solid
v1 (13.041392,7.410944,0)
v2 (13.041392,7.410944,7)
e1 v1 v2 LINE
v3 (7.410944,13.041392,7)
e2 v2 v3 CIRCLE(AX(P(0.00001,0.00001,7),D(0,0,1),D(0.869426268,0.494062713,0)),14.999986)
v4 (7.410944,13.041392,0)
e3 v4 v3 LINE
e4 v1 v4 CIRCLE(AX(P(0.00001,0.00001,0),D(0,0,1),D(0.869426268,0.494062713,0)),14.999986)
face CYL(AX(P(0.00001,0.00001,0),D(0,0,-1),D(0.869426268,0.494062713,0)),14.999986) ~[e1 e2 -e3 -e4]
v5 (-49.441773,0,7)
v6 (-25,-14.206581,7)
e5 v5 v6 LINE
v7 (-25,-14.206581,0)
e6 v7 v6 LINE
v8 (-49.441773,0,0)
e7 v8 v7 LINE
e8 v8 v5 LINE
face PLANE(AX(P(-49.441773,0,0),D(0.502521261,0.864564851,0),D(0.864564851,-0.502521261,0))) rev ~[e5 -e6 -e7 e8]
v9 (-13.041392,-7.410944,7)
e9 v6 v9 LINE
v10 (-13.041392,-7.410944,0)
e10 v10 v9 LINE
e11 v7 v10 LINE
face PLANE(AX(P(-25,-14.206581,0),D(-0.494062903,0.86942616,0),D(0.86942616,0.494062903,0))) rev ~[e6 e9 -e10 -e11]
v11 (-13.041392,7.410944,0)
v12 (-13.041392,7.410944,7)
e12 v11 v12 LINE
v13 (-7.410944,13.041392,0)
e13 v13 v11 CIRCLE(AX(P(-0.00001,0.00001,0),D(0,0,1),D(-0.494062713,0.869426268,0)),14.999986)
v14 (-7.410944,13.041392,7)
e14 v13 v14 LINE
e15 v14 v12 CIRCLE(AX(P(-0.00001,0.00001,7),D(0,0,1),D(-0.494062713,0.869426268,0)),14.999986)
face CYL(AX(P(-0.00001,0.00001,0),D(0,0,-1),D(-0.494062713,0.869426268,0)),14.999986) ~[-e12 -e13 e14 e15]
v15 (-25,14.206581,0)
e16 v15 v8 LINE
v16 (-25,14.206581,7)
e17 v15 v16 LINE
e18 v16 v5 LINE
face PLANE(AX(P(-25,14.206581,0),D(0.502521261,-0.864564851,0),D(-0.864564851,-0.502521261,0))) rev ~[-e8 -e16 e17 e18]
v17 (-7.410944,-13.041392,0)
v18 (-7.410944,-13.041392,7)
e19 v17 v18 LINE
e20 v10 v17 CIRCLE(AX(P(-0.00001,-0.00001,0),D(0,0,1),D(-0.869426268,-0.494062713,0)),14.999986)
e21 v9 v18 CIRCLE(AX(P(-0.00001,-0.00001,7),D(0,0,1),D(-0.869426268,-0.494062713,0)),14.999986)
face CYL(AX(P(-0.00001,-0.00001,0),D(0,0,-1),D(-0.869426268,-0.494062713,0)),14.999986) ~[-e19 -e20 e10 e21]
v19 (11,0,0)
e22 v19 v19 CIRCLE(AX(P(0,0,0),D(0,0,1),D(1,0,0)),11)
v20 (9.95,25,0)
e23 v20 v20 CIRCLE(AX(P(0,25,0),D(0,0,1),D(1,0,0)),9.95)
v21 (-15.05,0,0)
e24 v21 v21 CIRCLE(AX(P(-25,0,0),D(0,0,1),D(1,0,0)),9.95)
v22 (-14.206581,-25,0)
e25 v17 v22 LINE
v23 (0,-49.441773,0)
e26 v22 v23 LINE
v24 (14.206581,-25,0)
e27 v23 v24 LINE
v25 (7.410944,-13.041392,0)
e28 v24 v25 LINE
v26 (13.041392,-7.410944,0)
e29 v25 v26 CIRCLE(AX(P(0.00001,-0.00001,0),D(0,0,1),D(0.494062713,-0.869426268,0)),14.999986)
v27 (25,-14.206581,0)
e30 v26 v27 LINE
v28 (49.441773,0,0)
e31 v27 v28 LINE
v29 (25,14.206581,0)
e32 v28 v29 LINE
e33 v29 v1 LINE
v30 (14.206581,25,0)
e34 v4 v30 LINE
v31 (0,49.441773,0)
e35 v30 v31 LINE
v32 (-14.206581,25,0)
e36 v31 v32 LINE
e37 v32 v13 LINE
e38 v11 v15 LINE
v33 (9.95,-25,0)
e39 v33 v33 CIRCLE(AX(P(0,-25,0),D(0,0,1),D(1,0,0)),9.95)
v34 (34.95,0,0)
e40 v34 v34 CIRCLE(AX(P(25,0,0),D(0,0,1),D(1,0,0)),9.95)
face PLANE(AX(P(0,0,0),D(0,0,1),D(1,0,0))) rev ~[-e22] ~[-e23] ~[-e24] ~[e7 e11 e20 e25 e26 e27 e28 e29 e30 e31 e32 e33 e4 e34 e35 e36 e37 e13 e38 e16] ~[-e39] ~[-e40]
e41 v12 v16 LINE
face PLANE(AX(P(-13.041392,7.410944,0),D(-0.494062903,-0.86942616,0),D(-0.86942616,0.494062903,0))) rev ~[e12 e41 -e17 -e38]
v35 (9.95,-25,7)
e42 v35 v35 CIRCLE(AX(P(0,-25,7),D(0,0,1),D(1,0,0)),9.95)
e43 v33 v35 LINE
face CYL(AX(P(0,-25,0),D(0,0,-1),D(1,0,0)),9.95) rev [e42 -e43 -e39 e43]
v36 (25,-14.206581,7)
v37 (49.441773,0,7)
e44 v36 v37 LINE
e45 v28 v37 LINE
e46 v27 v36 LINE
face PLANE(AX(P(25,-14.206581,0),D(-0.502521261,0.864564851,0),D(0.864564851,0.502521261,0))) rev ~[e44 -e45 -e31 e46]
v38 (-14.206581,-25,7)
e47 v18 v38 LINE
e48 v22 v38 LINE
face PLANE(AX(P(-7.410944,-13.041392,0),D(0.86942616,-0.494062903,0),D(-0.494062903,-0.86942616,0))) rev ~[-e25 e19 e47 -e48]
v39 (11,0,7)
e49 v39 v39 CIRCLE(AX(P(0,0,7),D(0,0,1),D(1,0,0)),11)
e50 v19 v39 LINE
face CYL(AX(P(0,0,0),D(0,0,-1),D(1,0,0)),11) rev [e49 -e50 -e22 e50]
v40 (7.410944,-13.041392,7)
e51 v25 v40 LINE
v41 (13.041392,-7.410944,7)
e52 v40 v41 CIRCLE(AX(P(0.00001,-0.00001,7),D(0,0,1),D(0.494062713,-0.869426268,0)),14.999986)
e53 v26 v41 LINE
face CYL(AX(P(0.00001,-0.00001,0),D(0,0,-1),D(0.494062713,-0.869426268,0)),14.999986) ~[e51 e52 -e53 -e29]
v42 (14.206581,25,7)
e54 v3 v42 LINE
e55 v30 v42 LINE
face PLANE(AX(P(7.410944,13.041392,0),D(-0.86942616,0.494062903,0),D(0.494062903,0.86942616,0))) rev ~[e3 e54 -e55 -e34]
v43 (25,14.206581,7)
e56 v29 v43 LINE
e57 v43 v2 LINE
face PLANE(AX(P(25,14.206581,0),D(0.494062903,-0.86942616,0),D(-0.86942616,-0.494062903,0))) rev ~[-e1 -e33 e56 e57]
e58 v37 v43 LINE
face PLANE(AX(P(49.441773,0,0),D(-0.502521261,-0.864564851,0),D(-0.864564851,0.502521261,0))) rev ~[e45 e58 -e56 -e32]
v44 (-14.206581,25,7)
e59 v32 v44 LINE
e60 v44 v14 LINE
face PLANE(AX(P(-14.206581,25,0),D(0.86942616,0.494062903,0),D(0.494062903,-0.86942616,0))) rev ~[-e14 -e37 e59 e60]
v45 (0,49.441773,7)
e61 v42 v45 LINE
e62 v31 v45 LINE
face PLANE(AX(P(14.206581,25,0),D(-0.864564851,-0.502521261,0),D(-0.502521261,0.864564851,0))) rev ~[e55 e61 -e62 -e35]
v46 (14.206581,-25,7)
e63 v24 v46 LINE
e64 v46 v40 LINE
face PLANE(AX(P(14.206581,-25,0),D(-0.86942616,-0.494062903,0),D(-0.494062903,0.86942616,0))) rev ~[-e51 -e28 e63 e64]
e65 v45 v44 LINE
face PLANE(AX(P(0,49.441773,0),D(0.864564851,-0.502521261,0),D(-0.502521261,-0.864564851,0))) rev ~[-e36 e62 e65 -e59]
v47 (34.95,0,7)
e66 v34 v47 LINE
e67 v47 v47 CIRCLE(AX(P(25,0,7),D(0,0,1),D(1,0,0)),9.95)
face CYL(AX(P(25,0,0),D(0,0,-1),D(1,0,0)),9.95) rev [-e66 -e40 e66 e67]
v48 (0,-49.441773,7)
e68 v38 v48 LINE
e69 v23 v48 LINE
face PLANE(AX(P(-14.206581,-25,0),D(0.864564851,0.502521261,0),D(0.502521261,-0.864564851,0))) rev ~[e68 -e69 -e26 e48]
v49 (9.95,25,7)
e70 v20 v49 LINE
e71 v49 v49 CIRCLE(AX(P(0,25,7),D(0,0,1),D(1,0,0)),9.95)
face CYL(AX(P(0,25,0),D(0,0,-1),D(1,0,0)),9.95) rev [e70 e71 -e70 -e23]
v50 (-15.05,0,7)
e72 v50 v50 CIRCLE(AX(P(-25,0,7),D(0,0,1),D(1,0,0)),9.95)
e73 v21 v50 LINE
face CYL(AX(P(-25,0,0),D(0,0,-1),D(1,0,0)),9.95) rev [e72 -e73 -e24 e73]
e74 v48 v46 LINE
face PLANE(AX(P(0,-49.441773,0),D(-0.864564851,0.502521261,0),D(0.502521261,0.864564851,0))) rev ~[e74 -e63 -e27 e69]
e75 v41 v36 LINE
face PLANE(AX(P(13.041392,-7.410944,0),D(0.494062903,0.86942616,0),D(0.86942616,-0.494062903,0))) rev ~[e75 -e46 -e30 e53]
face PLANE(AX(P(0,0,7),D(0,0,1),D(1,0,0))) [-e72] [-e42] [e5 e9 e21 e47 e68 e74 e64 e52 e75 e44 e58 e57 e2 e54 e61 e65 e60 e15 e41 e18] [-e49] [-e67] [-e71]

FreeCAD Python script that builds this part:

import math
import FreeCAD as App
import Part
import Sketcher

V = App.Vector

doc = App.newDocument("Part")
params = doc.addObject("Spreadsheet::Sheet", "Params")
for row, (alias, value) in enumerate([
    ("sketch1_diameter", "22 mm"),
    ("sketch1_diameter2", "19.9 mm"),
    ("pad1_length", "7 mm"),
], start=1):
    params.set(f"A{row}", alias)
    params.set(f"B{row}", "=" + value)
    params.setAlias(f"B{row}", alias)

body = doc.addObject("PartDesign::Body", "Body")

sketch1 = body.newObject("Sketcher::SketchObject", "Sketch")
sketch1.AttachmentSupport = (doc.getObject("XY_Plane"), [""])
sketch1.MapMode = "FlatFace"
sketch1.addGeometry([
    Part.LineSegment(V(-14.206581, 25, 0), V(-7.410944, 13.041392, 0)),
    Part.ArcOfCircle(Part.Circle(V(-0.00001, 0.00001, 0), V(0, 0, 1), 14.999986), math.radians(119.607964), math.radians(150.392036)),
    Part.LineSegment(V(-13.041392, 7.410944, 0), V(-25, 14.206581, 0)),
    Part.LineSegment(V(-25, 14.206581, 0), V(-49.441773, 0, 0)),
    Part.LineSegment(V(-49.441773, 0, 0), V(-25, -14.206581, 0)),
    Part.LineSegment(V(-25, -14.206581, 0), V(-13.041392, -7.410944, 0)),
    Part.ArcOfCircle(Part.Circle(V(-0.00001, -0.00001, 0), V(0, 0, 1), 14.999986), math.radians(-150.392036), math.radians(-119.607964)),
    Part.LineSegment(V(-7.410944, -13.041392, 0), V(-14.206581, -25, 0)),
    Part.LineSegment(V(-14.206581, -25, 0), V(0, -49.441773, 0)),
    Part.LineSegment(V(0, -49.441773, 0), V(14.206581, -25, 0)),
    Part.LineSegment(V(14.206581, -25, 0), V(7.410944, -13.041392, 0)),
    Part.ArcOfCircle(Part.Circle(V(0.00001, -0.00001, 0), V(0, 0, 1), 14.999986), math.radians(-60.392036), math.radians(-29.607964)),
    Part.LineSegment(V(13.041392, -7.410944, 0), V(25, -14.206581, 0)),
    Part.LineSegment(V(25, -14.206581, 0), V(49.441773, 0, 0)),
    Part.LineSegment(V(49.441773, 0, 0), V(25, 14.206581, 0)),
    Part.LineSegment(V(25, 14.206581, 0), V(13.041392, 7.410944, 0)),
    Part.ArcOfCircle(Part.Circle(V(0.00001, 0.00001, 0), V(0, 0, 1), 14.999986), math.radians(29.607964), math.radians(60.392036)),
    Part.LineSegment(V(7.410944, 13.041392, 0), V(14.206581, 25, 0)),
    Part.LineSegment(V(14.206581, 25, 0), V(0, 49.441773, 0)),
    Part.LineSegment(V(0, 49.441773, 0), V(-14.206581, 25, 0)),
    Part.Circle(V(0, -25, 0), V(0, 0, 1), 9.95),
    Part.Circle(V(-25, 0, 0), V(0, 0, 1), 9.95),
    Part.Circle(V(0, 0, 0), V(0, 0, 1), 11),
    Part.Circle(V(25, 0, 0), V(0, 0, 1), 9.95),
    Part.Circle(V(0, 25, 0), V(0, 0, 1), 9.95),
], False)
sketch1.addConstraint([
    Sketcher.Constraint("Coincident", 0, 2, 1, 1),
    Sketcher.Constraint("Coincident", 1, 2, 2, 1),
    Sketcher.Constraint("Coincident", 2, 2, 3, 1),
    Sketcher.Constraint("Coincident", 3, 2, 4, 1),
    Sketcher.Constraint("Coincident", 4, 2, 5, 1),
    Sketcher.Constraint("Coincident", 5, 2, 6, 1),
    Sketcher.Constraint("Coincident", 6, 2, 7, 1),
    Sketcher.Constraint("Coincident", 7, 2, 8, 1),
    Sketcher.Constraint("Coincident", 8, 2, 9, 1),
    Sketcher.Constraint("Coincident", 9, 2, 10, 1),
    Sketcher.Constraint("Coincident", 10, 2, 11, 1),
    Sketcher.Constraint("Coincident", 11, 2, 12, 1),
    Sketcher.Constraint("Coincident", 12, 2, 13, 1),
    Sketcher.Constraint("Coincident", 13, 2, 14, 1),
    Sketcher.Constraint("Coincident", 14, 2, 15, 1),
    Sketcher.Constraint("Coincident", 15, 2, 16, 1),
    Sketcher.Constraint("Coincident", 16, 2, 17, 1),
    Sketcher.Constraint("Coincident", 17, 2, 18, 1),
    Sketcher.Constraint("Coincident", 18, 2, 19, 1),
    Sketcher.Constraint("Coincident", 19, 2, 0, 1),
    Sketcher.Constraint("Coincident", 22, 3, -1, 1),
    Sketcher.Constraint("Equal", 1, 6),
    Sketcher.Constraint("Equal", 6, 11),
    Sketcher.Constraint("Equal", 11, 16),
    Sketcher.Constraint("Equal", 20, 21),
    Sketcher.Constraint("Equal", 21, 23),
    Sketcher.Constraint("Equal", 23, 24),
    Sketcher.Constraint("Symmetric", 1, 3, 11, 3, -1, 1),
    Sketcher.Constraint("Symmetric", 6, 3, 16, 3, -1, 1),
    Sketcher.Constraint("Symmetric", 21, 3, 23, 3, -1, 1),
    Sketcher.Constraint("Symmetric", 20, 3, 24, 3, -1, 1),
    Sketcher.Constraint("Symmetric", 2, 2, 12, 2, -1, 1),
    Sketcher.Constraint("Symmetric", 3, 2, 13, 2, -1, 1),
    Sketcher.Constraint("Symmetric", 4, 2, 14, 2, -1, 1),
    Sketcher.Constraint("Symmetric", 7, 2, 17, 2, -1, 1),
    Sketcher.Constraint("Symmetric", 8, 2, 18, 2, -1, 1),
    Sketcher.Constraint("Symmetric", 9, 2, 19, 2, -1, 1),
    Sketcher.Constraint("Symmetric", 6, 3, 11, 3, -2),
    Sketcher.Constraint("Symmetric", 7, 2, 9, 2, -2),
    Sketcher.Constraint("Symmetric", 4, 2, 12, 2, -2),
    Sketcher.Constraint("PointOnObject", 20, 3, -2),
    Sketcher.Constraint("PointOnObject", 21, 3, -1),
    Sketcher.Constraint("PointOnObject", 3, 2, -1),
    Sketcher.Constraint("PointOnObject", 8, 2, -2),
    Sketcher.Constraint("Perpendicular", 0, 5),
    Sketcher.Constraint("Perpendicular", 2, 7),
    Sketcher.Constraint("Perpendicular", 3, 8),
    Sketcher.Constraint("Perpendicular", 5, 10),
    Sketcher.Constraint("Perpendicular", 7, 12),
    Sketcher.Constraint("Perpendicular", 10, 15),
    Sketcher.Constraint("Perpendicular", 12, 17),
    Sketcher.Constraint("Horizontal", 20, 3, 7, 2),
    Sketcher.Constraint("Horizontal", 6, 2, 10, 2),
    Sketcher.Constraint("Vertical", 21, 3, 2, 2),
    Sketcher.Constraint("Equal", 0, 2),
    Sketcher.Constraint("Equal", 4, 8),
    Sketcher.Constraint("Diameter", 22, 22.0),
    Sketcher.Constraint("Diameter", 20, 19.9),
    Sketcher.Constraint("DistanceY", 20, 3, -1, 1, 25.0),
    Sketcher.Constraint("DistanceX", 21, 3, -1, 1, 25.0),
    Sketcher.Constraint("Radius", 1, 14.999986),
    Sketcher.Constraint("Distance", 0, 13.754599),
    Sketcher.Constraint("DistanceY", -1, 1, 2, 2, 14.206581),
    Sketcher.Constraint("DistanceY", 1, 3, 0, 2, 13.041382),
    Sketcher.Constraint("DistanceX", 3, 2, 1, 2, 36.400381),
])
sketch1.setExpression("Constraints[56]", "Params.sketch1_diameter")
sketch1.setExpression("Constraints[57]", "Params.sketch1_diameter2")
pad1 = body.newObject("PartDesign::Pad", "Pad")
pad1.Profile = sketch1
pad1.setExpression("Length", "Params.pad1_length")

doc.recompute()
